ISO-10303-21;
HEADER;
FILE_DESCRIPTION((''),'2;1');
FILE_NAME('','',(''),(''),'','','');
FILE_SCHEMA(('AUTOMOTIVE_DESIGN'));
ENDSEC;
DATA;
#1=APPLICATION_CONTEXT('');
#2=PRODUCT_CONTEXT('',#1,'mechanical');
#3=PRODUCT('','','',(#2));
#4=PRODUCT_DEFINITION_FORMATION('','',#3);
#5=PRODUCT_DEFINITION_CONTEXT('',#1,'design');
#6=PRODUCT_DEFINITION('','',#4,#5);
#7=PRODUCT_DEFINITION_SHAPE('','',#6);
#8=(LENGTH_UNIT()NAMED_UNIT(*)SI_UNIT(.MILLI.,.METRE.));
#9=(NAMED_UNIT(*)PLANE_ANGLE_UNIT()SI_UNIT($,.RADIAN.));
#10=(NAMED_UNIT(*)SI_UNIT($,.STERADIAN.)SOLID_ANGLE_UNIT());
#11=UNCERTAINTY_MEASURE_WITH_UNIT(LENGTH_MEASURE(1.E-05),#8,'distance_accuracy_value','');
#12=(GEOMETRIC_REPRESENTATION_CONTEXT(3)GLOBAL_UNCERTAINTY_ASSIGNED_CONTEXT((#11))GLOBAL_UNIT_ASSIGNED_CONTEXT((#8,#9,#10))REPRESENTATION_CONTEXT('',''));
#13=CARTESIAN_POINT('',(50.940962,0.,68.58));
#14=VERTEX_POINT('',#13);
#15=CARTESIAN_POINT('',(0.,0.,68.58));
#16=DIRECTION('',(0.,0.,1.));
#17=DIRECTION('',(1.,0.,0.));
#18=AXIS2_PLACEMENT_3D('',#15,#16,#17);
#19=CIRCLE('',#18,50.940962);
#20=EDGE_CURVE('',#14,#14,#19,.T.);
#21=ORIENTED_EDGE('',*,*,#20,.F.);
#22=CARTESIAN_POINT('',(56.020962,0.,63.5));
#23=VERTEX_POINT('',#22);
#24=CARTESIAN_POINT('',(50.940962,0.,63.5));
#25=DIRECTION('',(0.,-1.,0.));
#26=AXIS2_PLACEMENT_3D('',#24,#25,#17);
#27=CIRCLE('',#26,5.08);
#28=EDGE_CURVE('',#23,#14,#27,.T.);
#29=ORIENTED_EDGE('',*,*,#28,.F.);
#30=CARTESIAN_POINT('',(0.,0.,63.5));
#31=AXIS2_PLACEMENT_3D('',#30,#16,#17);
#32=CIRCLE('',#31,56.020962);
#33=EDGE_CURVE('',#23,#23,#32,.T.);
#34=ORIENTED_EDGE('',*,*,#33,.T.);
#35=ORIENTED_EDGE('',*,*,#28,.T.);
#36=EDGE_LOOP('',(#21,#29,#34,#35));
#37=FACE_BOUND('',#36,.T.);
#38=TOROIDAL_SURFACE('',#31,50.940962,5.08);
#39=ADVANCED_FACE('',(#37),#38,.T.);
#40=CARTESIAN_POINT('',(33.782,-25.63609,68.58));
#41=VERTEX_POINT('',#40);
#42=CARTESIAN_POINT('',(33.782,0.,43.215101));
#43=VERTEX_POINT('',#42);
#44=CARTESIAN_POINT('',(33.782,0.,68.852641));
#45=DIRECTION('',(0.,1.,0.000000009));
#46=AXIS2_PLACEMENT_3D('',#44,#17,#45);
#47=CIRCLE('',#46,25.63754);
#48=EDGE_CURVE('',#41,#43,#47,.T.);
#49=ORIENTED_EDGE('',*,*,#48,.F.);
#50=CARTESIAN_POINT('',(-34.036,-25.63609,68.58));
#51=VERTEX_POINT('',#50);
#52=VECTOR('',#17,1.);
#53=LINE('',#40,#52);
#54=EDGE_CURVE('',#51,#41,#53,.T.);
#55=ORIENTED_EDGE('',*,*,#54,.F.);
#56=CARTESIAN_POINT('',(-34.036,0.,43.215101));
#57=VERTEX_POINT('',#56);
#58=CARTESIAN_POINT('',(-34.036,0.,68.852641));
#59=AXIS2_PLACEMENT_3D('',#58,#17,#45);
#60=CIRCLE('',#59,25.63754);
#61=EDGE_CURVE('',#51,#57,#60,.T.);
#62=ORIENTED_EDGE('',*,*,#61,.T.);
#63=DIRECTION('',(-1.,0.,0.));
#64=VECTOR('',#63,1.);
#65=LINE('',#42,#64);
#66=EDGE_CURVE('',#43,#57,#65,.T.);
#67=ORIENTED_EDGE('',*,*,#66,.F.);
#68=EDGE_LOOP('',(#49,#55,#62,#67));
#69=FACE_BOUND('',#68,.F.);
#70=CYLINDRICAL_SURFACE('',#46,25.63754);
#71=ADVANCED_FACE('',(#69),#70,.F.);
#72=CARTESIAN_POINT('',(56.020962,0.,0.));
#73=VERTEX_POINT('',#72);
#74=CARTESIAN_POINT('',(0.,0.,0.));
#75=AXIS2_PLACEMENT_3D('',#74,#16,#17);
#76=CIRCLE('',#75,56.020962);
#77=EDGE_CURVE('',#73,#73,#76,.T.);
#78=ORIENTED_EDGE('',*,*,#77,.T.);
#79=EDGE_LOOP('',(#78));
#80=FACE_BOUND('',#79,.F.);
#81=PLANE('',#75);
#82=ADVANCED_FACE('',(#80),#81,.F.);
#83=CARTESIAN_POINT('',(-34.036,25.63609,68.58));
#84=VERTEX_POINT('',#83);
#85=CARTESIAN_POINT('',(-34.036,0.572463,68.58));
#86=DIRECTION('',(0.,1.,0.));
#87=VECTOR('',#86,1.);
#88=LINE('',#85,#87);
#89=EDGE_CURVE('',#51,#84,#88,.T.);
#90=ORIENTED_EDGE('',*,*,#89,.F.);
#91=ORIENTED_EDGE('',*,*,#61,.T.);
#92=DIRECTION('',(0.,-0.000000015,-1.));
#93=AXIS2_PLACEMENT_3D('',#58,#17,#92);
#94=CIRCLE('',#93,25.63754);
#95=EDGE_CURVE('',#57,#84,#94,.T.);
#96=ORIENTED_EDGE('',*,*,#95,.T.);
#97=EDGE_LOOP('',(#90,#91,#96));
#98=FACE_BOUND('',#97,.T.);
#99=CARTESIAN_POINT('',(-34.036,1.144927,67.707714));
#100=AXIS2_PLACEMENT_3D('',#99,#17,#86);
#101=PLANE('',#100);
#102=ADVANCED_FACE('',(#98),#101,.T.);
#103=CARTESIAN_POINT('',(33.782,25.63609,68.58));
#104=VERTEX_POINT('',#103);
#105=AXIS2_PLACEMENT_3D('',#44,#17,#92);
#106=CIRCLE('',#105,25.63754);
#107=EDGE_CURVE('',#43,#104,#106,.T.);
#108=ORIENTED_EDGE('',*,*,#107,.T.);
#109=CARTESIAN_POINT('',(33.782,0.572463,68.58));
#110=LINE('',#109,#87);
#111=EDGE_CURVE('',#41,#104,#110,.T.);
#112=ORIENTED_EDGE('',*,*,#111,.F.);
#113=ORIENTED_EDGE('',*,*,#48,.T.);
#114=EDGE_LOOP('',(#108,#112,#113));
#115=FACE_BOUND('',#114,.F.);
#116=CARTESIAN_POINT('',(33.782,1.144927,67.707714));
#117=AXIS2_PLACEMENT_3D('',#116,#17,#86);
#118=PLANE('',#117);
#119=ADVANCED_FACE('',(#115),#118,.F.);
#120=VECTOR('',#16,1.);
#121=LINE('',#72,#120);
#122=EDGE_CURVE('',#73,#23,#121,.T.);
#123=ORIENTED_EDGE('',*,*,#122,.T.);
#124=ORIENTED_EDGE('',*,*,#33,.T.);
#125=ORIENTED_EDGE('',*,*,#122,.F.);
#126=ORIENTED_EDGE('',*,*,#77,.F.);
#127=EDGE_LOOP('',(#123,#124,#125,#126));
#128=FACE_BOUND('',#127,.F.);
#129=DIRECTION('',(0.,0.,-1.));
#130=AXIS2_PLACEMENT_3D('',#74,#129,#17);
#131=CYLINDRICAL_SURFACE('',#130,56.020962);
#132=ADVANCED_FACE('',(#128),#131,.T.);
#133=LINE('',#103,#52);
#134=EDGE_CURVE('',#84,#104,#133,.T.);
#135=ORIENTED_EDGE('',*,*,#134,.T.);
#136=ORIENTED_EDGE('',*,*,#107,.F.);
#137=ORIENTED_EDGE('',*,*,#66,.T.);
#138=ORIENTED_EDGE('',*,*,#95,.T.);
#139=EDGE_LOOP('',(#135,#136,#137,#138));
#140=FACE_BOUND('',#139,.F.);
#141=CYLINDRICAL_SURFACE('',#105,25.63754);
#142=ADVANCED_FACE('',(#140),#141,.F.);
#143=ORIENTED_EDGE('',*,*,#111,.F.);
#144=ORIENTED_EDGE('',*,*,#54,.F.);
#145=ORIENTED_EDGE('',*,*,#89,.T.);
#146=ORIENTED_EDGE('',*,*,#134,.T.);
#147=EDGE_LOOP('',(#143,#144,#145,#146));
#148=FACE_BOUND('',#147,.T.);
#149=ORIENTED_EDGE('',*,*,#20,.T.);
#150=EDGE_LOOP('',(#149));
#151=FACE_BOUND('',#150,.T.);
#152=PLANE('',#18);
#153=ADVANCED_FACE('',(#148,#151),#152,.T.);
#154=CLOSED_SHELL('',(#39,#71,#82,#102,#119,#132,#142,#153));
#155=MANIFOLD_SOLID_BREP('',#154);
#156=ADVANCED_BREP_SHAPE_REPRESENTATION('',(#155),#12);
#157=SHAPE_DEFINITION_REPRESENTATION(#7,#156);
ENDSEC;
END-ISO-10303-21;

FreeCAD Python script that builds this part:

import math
import FreeCAD as App
import Part
import Sketcher
Q = App.Units.Quantity


def edges_at(feature, points):
    """Names of the edges that pass closest to the given points."""
    edges = feature.Shape.Edges
    near = lambda p: min(range(len(edges)), key=lambda i: edges[i].distToShape(Part.Vertex(*p))[0])
    return sorted({f"Edge{near(p) + 1}" for p in points})

doc = App.newDocument("Part")
body = doc.addObject("PartDesign::Body", "Body")

# Sketch on XY plane
sketch1 = body.newObject("Sketcher::SketchObject", "Sketch")
sketch1.AttachmentSupport = (doc.getObject("XY_Plane"), [""])
sketch1.MapMode = "FlatFace"
sketch1.addGeometry(Part.Circle(App.Vector(0, 0, 0), App.Vector(0, 0, 1), 56), False)
sketch1.addConstraint(Sketcher.Constraint("Coincident", 0, 3, -1, 1))
sketch1.addConstraint(Sketcher.Constraint("Diameter", 0, 112.041924))
pad1 = body.newObject("PartDesign::Pad", "Pad")
pad1.Profile = sketch1
pad1.Length = Q("2.7 in")

# Sketch on YZ plane
sketch2 = body.newObject("Sketcher::SketchObject", "Sketch001")
sketch2.AttachmentSupport = (doc.getObject("YZ_Plane"), [""])
sketch2.MapMode = "FlatFace"
sketch2.AttachmentOffset = App.Placement(App.Vector(0, 0, 1.33 * 25.4), App.Rotation())
sketch2.addGeometry(Part.ArcOfCircle(Part.Circle(App.Vector(0, 69, 0), App.Vector(0, 0, 1), 26), math.radians(-90), math.radians(0)), False)
sketch2.addGeometry(Part.ArcOfCircle(Part.Circle(App.Vector(0, 69, 0), App.Vector(0, 0, 1), 26), math.radians(0), math.radians(270)), False)
sketch2.addConstraint(Sketcher.Constraint("Tangent", 0, 1, 1, 2))
sketch2.addConstraint(Sketcher.Constraint("Coincident", 1, 1, 0, 2))
sketch2.addConstraint(Sketcher.Constraint("PointOnObject", 0, 3, -2))
sketch2.addConstraint(Sketcher.Constraint("PointOnObject", 0, 1, -2))
sketch2.addConstraint(Sketcher.Constraint("Horizontal", 0, 3, 1, 1))
sketch2.addConstraint(Sketcher.Constraint("Radius", 0, 25.63754))
sketch2.addConstraint(Sketcher.Constraint("DistanceY", -1, 1, 0, 1, 43.215101))
pocket1 = body.newObject("PartDesign::Pocket", "Pocket")
pocket1.Profile = sketch2
pocket1.Length = Q("2.67 in")
doc.recompute()

fillet = body.newObject("PartDesign::Fillet", "Fillet")
fillet.Base = (pocket1, edges_at(pocket1, [(-56.021, 0, 68.58)]))
fillet.Radius = Q("0.2 in")

doc.recompute()
